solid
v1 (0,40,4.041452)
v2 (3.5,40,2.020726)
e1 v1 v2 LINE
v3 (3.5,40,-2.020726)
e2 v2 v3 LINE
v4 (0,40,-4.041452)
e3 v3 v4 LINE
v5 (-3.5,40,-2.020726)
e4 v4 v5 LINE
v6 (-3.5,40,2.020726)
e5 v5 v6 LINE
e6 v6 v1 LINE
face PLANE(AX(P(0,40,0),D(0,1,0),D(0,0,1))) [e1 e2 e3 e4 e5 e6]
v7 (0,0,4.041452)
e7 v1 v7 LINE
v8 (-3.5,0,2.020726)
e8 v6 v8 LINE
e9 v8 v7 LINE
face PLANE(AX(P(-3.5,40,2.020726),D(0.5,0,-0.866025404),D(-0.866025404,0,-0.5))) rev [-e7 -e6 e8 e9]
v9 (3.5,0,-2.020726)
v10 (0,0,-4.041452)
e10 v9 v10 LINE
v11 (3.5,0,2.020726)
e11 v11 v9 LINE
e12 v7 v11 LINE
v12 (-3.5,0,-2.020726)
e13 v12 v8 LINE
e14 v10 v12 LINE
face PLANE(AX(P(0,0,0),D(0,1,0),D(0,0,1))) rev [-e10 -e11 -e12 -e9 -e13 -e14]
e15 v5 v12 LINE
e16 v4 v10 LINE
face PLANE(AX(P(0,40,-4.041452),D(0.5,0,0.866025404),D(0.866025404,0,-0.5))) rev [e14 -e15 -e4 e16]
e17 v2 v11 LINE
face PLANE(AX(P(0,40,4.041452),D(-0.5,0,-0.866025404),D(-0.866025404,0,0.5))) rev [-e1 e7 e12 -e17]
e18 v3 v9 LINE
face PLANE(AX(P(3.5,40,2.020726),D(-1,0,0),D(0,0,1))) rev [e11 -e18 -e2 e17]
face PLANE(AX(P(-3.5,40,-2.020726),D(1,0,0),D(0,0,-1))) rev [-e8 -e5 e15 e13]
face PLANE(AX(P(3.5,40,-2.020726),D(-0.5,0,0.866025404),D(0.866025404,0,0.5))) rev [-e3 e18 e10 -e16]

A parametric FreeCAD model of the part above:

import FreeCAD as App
import Part
import Sketcher

V = App.Vector
Q = App.Units.Quantity

doc = App.newDocument("Part")
params = doc.addObject("Spreadsheet::Sheet", "Params")
for row, (alias, value) in enumerate([
    ("pad1_length", "40 mm"),
], start=1):
    params.set(f"A{row}", alias)
    params.set(f"B{row}", "=" + value)
    params.setAlias(f"B{row}", alias)

body = doc.addObject("PartDesign::Body", "Body")

sketch1 = doc.addObject("Sketcher::SketchObject", "Sketch")
body.addObject(sketch1)
sketch1.AttachmentSupport = (doc.XZ_Plane, [""])
sketch1.MapMode = "FlatFace"
sketch1.addGeometry(Part.LineSegment(V(0, -4, 0), V(-3.5, -2, 0)), False)
sketch1.addGeometry(Part.LineSegment(V(-3.5, -2, 0), V(-3.5, 2, 0)), False)
sketch1.addGeometry(Part.LineSegment(V(-3.5, 2, 0), V(0, 4, 0)), False)
sketch1.addGeometry(Part.LineSegment(V(0, 4, 0), V(3.5, 2, 0)), False)
sketch1.addGeometry(Part.LineSegment(V(3.5, 2, 0), V(3.5, -2, 0)), False)
sketch1.addGeometry(Part.LineSegment(V(3.5, -2, 0), V(0, -4, 0)), False)
sketch1.addConstraint(Sketcher.Constraint("Coincident", 0, 2, 1, 1))
sketch1.addConstraint(Sketcher.Constraint("Coincident", 1, 2, 2, 1))
sketch1.addConstraint(Sketcher.Constraint("Coincident", 2, 2, 3, 1))
sketch1.addConstraint(Sketcher.Constraint("Coincident", 3, 2, 4, 1))
sketch1.addConstraint(Sketcher.Constraint("Coincident", 4, 2, 5, 1))
sketch1.addConstraint(Sketcher.Constraint("Coincident", 5, 2, 0, 1))
sketch1.addConstraint(Sketcher.Constraint("Vertical", 1))
sketch1.addConstraint(Sketcher.Constraint("Vertical", 4))
sketch1.addConstraint(Sketcher.Constraint("Symmetric", 0, 2, 3, 2, -1, 1))
sketch1.addConstraint(Sketcher.Constraint("Symmetric", 2, 2, 5, 2, -1, 1))
sketch1.addConstraint(Sketcher.Constraint("PointOnObject", 2, 2, -2))
sketch1.addConstraint(Sketcher.Constraint("Parallel", 2, 5))
sketch1.addConstraint(Sketcher.Constraint("Horizontal", 1, 2, 3, 2))
sketch1.addConstraint(Sketcher.Constraint("Angle", 0, Q("150 deg")))
sketch1.addConstraint(Sketcher.Constraint("DistanceX", 1, 2, 3, 2, 7.0))
sketch1.addConstraint(Sketcher.Constraint("DistanceY", 1, 1, 1, 2, 4.041452))
pad1 = doc.addObject("PartDesign::Pad", "Pad")
body.addObject(pad1)
pad1.Profile = sketch1
pad1.setExpression("Length", "Params.pad1_length")
pad1.Reversed = True

doc.recompute()
